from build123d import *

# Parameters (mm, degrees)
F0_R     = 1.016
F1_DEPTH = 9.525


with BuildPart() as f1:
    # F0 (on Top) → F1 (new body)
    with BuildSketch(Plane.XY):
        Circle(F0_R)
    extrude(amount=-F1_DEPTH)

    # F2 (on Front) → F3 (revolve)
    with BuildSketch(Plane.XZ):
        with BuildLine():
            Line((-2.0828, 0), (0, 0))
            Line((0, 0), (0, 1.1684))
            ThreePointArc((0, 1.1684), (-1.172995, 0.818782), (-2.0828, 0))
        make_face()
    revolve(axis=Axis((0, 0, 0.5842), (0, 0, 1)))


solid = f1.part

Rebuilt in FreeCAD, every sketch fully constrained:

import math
import FreeCAD as App
import Part
import Sketcher
Q = App.Units.Quantity

doc = App.newDocument("Part")
params = doc.addObject("Spreadsheet::Sheet", "Params")
for row, (alias, value) in enumerate([
    ("sketch1_diameter", "0.08 in"),
    ("pad1_length", "0.375 in"),
    ("sketch2_width", "0.082 in"),
    ("sketch2_height", "0.046 in"),
    ("revolution_angle", "360 deg"),
], start=1):
    params.set(f"A{row}", alias)
    params.set(f"B{row}", "=" + value)
    params.setAlias(f"B{row}", alias)

body = doc.addObject("PartDesign::Body", "Body")

sketch1 = doc.addObject("Sketcher::SketchObject", "Sketch")
body.addObject(sketch1)
sketch1.AttachmentSupport = (doc.XY_Plane, [""])
sketch1.MapMode = "FlatFace"
sketch1.addGeometry(Part.Circle(App.Vector(0, 0, 0), App.Vector(0, 0, 1), 1), False)
sketch1.addConstraint([
    Sketcher.Constraint("Coincident", 0, 3, -1, 1),
    Sketcher.Constraint("Diameter", 0, Q("0.08 in")),
])
sketch1.setExpression("Constraints[1]", "Params.sketch1_diameter")
pad1 = doc.addObject("PartDesign::Pad", "Pad")
body.addObject(pad1)
pad1.Profile = sketch1
pad1.setExpression("Length", "Params.pad1_length")
pad1.Reversed = True

sketch2 = doc.addObject("Sketcher::SketchObject", "Sketch001")
body.addObject(sketch2)
sketch2.AttachmentSupport = (doc.XZ_Plane, [""])
sketch2.MapMode = "FlatFace"
sketch2.addGeometry([
    Part.LineSegment(App.Vector(-2.1, 0, 0), App.Vector(0, 0, 0)),
    Part.LineSegment(App.Vector(0, 0, 0), App.Vector(0, 1.2, 0)),
    Part.ArcOfCircle(Part.Circle(App.Vector(0.2, -1.6, 0), App.Vector(0, 0, 1), 2.8), math.radians(94), math.radians(145)),
], False)
sketch2.addConstraint([
    Sketcher.Constraint("Coincident", 0, 2, 1, 1),
    Sketcher.Constraint("Coincident", 1, 2, 2, 1),
    Sketcher.Constraint("Coincident", 2, 2, 0, 1),
    Sketcher.Constraint("Horizontal", 0),
    Sketcher.Constraint("Vertical", 1),
    Sketcher.Constraint("Coincident", 0, 2, -1, 1),
    Sketcher.Constraint("DistanceX", 0, 1, 0, 2, Q("0.082 in")),
    Sketcher.Constraint("DistanceY", 1, 1, 1, 2, Q("0.046 in")),
    Sketcher.Constraint("Radius", 2, 2.784954),
])
sketch2.setExpression("Constraints[6]", "Params.sketch2_width")
sketch2.setExpression("Constraints[7]", "Params.sketch2_height")
revolution = doc.addObject("PartDesign::Revolution", "Revolution")
body.addObject(revolution)
revolution.Profile = sketch2
revolution.ReferenceAxis = (sketch2, ["V_Axis"])
revolution.setExpression("Angle", "Params.revolution_angle")

doc.recompute()
